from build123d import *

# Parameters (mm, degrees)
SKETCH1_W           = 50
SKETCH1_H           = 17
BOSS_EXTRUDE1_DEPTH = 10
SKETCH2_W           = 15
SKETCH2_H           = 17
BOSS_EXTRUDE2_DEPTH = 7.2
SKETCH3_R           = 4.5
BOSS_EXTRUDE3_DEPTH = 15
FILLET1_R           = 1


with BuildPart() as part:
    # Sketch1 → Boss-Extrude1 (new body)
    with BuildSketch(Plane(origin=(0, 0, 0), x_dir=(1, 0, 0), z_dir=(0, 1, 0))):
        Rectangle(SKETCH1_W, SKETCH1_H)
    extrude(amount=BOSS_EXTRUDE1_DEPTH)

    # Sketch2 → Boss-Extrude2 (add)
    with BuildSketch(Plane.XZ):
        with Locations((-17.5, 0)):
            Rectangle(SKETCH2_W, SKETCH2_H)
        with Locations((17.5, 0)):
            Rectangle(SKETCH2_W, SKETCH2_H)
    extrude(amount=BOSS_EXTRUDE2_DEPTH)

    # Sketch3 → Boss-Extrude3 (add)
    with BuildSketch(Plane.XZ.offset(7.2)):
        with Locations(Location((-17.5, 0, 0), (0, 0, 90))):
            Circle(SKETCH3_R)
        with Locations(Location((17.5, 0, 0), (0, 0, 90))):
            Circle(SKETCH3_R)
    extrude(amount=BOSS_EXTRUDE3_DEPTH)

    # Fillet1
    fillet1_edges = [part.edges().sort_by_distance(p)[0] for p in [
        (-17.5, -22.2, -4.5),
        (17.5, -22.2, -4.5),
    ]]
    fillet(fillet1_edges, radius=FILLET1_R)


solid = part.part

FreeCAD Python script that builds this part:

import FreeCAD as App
import Part
import Sketcher

V = App.Vector
Q = App.Units.Quantity


def edges_at(feature, points):
    """Names of the edges that pass closest to the given points."""
    edges = feature.Shape.Edges
    near = lambda p: min(range(len(edges)), key=lambda i: edges[i].distToShape(Part.Vertex(*p))[0])
    return sorted({f"Edge{near(p) + 1}" for p in points})

doc = App.newDocument("Part")
body = doc.addObject("PartDesign::Body", "Body")

# Sketch on XZ plane
sketch1 = doc.addObject("Sketcher::SketchObject", "Sketch")
body.addObject(sketch1)
sketch1.AttachmentSupport = (doc.XZ_Plane, [""])
sketch1.MapMode = "FlatFace"
sketch1.addGeometry(Part.LineSegment(V(-25, -8, 0), V(-25, 8, 0)), False)
sketch1.addGeometry(Part.LineSegment(V(-25, 8, 0), V(25, 8, 0)), False)
sketch1.addGeometry(Part.LineSegment(V(25, 8, 0), V(25, -8, 0)), False)
sketch1.addGeometry(Part.LineSegment(V(25, -8, 0), V(-25, -8, 0)), False)
sketch1.addConstraint(Sketcher.Constraint("Coincident", 0, 2, 1, 1))
sketch1.addConstraint(Sketcher.Constraint("Coincident", 1, 2, 2, 1))
sketch1.addConstraint(Sketcher.Constraint("Coincident", 2, 2, 3, 1))
sketch1.addConstraint(Sketcher.Constraint("Coincident", 3, 2, 0, 1))
sketch1.addConstraint(Sketcher.Constraint("Vertical", 0))
sketch1.addConstraint(Sketcher.Constraint("Horizontal", 1))
sketch1.addConstraint(Sketcher.Constraint("Vertical", 2))
sketch1.addConstraint(Sketcher.Constraint("Horizontal", 3))
sketch1.addConstraint(Sketcher.Constraint("Symmetric", 0, 2, 2, 2, -1, 1))
sketch1.addConstraint(Sketcher.Constraint("DistanceX", 1, 1, 1, 2, Q("50 mm")))
sketch1.addConstraint(Sketcher.Constraint("DistanceY", 0, 1, 0, 2, Q("17 mm")))
pad1 = doc.addObject("PartDesign::Pad", "Pad")
body.addObject(pad1)
pad1.Profile = sketch1
pad1.Length = 10
pad1.Reversed = True

# Sketch on XZ plane
sketch2 = doc.addObject("Sketcher::SketchObject", "Sketch001")
body.addObject(sketch2)
sketch2.AttachmentSupport = (doc.XZ_Plane, [""])
sketch2.MapMode = "FlatFace"
sketch2.addGeometry(Part.LineSegment(V(-25, 8, 0), V(-25, -8, 0)), False)
sketch2.addGeometry(Part.LineSegment(V(-25, -8, 0), V(-10, -8, 0)), False)
sketch2.addGeometry(Part.LineSegment(V(-10, -8, 0), V(-10, 8, 0)), False)
sketch2.addGeometry(Part.LineSegment(V(-10, 8, 0), V(-25, 8, 0)), False)
sketch2.addGeometry(Part.LineSegment(V(10, 8, 0), V(10, -8, 0)), False)
sketch2.addGeometry(Part.LineSegment(V(10, -8, 0), V(25, -8, 0)), False)
sketch2.addGeometry(Part.LineSegment(V(25, -8, 0), V(25, 8, 0)), False)
sketch2.addGeometry(Part.LineSegment(V(25, 8, 0), V(10, 8, 0)), False)
sketch2.addConstraint(Sketcher.Constraint("Coincident", 0, 2, 1, 1))
sketch2.addConstraint(Sketcher.Constraint("Coincident", 1, 2, 2, 1))
sketch2.addConstraint(Sketcher.Constraint("Coincident", 2, 2, 3, 1))
sketch2.addConstraint(Sketcher.Constraint("Coincident", 3, 2, 0, 1))
sketch2.addConstraint(Sketcher.Constraint("Coincident", 4, 2, 5, 1))
sketch2.addConstraint(Sketcher.Constraint("Coincident", 5, 2, 6, 1))
sketch2.addConstraint(Sketcher.Constraint("Coincident", 6, 2, 7, 1))
sketch2.addConstraint(Sketcher.Constraint("Coincident", 7, 2, 4, 1))
sketch2.addConstraint(Sketcher.Constraint("Vertical", 0))
sketch2.addConstraint(Sketcher.Constraint("Horizontal", 1))
sketch2.addConstraint(Sketcher.Constraint("Vertical", 2))
sketch2.addConstraint(Sketcher.Constraint("Horizontal", 3))
sketch2.addConstraint(Sketcher.Constraint("Vertical", 4))
sketch2.addConstraint(Sketcher.Constraint("Horizontal", 5))
sketch2.addConstraint(Sketcher.Constraint("Vertical", 6))
sketch2.addConstraint(Sketcher.Constraint("Horizontal", 7))
sketch2.addConstraint(Sketcher.Constraint("Symmetric", 2, 2, 4, 2, -1, 1))
sketch2.addConstraint(Sketcher.Constraint("Symmetric", 0, 2, 6, 2, -1, 1))
sketch2.addConstraint(Sketcher.Constraint("Horizontal", 1, 2, 4, 2))
sketch2.addConstraint(Sketcher.Constraint("DistanceX", 1, 1, 1, 2, Q("15 mm")))
sketch2.addConstraint(Sketcher.Constraint("DistanceY", 0, 2, 0, 1, Q("17 mm")))
sketch2.addConstraint(Sketcher.Constraint("DistanceX", 0, 2, -1, 1, Q("25 mm")))
pad2 = doc.addObject("PartDesign::Pad", "Pad001")
body.addObject(pad2)
pad2.Profile = sketch2
pad2.Length = 7.2

# Sketch on XZ plane
sketch3 = doc.addObject("Sketcher::SketchObject", "Sketch002")
body.addObject(sketch3)
sketch3.AttachmentSupport = (doc.XZ_Plane, [""])
sketch3.MapMode = "FlatFace"
sketch3.AttachmentOffset = App.Placement(V(0, 0, 7.2), App.Rotation())
sketch3.addGeometry(Part.Circle(V(-17.5, 0, 0), V(0, 0, 1), 4.5), False)
sketch3.addGeometry(Part.Circle(V(17.5, 0, 0), V(0, 0, 1), 4.5), False)
sketch3.addConstraint(Sketcher.Constraint("Equal", 0, 1))
sketch3.addConstraint(Sketcher.Constraint("Symmetric", 0, 3, 1, 3, -1, 1))
sketch3.addConstraint(Sketcher.Constraint("PointOnObject", 0, 3, -1))
sketch3.addConstraint(Sketcher.Constraint("Diameter", 0, Q("9 mm")))
sketch3.addConstraint(Sketcher.Constraint("DistanceX", 0, 3, 1, 3, Q("35 mm")))
pad3 = doc.addObject("PartDesign::Pad", "Pad002")
body.addObject(pad3)
pad3.Profile = sketch3
pad3.Length = 15
doc.recompute()

fillet = doc.addObject("PartDesign::Fillet", "Fillet")
body.addObject(fillet)
fillet.Base = (pad3, edges_at(pad3, [(-17.5, -22.2, -4.5), (17.5, -22.2, -4.5)]))
fillet.Radius = 1

doc.recompute()
